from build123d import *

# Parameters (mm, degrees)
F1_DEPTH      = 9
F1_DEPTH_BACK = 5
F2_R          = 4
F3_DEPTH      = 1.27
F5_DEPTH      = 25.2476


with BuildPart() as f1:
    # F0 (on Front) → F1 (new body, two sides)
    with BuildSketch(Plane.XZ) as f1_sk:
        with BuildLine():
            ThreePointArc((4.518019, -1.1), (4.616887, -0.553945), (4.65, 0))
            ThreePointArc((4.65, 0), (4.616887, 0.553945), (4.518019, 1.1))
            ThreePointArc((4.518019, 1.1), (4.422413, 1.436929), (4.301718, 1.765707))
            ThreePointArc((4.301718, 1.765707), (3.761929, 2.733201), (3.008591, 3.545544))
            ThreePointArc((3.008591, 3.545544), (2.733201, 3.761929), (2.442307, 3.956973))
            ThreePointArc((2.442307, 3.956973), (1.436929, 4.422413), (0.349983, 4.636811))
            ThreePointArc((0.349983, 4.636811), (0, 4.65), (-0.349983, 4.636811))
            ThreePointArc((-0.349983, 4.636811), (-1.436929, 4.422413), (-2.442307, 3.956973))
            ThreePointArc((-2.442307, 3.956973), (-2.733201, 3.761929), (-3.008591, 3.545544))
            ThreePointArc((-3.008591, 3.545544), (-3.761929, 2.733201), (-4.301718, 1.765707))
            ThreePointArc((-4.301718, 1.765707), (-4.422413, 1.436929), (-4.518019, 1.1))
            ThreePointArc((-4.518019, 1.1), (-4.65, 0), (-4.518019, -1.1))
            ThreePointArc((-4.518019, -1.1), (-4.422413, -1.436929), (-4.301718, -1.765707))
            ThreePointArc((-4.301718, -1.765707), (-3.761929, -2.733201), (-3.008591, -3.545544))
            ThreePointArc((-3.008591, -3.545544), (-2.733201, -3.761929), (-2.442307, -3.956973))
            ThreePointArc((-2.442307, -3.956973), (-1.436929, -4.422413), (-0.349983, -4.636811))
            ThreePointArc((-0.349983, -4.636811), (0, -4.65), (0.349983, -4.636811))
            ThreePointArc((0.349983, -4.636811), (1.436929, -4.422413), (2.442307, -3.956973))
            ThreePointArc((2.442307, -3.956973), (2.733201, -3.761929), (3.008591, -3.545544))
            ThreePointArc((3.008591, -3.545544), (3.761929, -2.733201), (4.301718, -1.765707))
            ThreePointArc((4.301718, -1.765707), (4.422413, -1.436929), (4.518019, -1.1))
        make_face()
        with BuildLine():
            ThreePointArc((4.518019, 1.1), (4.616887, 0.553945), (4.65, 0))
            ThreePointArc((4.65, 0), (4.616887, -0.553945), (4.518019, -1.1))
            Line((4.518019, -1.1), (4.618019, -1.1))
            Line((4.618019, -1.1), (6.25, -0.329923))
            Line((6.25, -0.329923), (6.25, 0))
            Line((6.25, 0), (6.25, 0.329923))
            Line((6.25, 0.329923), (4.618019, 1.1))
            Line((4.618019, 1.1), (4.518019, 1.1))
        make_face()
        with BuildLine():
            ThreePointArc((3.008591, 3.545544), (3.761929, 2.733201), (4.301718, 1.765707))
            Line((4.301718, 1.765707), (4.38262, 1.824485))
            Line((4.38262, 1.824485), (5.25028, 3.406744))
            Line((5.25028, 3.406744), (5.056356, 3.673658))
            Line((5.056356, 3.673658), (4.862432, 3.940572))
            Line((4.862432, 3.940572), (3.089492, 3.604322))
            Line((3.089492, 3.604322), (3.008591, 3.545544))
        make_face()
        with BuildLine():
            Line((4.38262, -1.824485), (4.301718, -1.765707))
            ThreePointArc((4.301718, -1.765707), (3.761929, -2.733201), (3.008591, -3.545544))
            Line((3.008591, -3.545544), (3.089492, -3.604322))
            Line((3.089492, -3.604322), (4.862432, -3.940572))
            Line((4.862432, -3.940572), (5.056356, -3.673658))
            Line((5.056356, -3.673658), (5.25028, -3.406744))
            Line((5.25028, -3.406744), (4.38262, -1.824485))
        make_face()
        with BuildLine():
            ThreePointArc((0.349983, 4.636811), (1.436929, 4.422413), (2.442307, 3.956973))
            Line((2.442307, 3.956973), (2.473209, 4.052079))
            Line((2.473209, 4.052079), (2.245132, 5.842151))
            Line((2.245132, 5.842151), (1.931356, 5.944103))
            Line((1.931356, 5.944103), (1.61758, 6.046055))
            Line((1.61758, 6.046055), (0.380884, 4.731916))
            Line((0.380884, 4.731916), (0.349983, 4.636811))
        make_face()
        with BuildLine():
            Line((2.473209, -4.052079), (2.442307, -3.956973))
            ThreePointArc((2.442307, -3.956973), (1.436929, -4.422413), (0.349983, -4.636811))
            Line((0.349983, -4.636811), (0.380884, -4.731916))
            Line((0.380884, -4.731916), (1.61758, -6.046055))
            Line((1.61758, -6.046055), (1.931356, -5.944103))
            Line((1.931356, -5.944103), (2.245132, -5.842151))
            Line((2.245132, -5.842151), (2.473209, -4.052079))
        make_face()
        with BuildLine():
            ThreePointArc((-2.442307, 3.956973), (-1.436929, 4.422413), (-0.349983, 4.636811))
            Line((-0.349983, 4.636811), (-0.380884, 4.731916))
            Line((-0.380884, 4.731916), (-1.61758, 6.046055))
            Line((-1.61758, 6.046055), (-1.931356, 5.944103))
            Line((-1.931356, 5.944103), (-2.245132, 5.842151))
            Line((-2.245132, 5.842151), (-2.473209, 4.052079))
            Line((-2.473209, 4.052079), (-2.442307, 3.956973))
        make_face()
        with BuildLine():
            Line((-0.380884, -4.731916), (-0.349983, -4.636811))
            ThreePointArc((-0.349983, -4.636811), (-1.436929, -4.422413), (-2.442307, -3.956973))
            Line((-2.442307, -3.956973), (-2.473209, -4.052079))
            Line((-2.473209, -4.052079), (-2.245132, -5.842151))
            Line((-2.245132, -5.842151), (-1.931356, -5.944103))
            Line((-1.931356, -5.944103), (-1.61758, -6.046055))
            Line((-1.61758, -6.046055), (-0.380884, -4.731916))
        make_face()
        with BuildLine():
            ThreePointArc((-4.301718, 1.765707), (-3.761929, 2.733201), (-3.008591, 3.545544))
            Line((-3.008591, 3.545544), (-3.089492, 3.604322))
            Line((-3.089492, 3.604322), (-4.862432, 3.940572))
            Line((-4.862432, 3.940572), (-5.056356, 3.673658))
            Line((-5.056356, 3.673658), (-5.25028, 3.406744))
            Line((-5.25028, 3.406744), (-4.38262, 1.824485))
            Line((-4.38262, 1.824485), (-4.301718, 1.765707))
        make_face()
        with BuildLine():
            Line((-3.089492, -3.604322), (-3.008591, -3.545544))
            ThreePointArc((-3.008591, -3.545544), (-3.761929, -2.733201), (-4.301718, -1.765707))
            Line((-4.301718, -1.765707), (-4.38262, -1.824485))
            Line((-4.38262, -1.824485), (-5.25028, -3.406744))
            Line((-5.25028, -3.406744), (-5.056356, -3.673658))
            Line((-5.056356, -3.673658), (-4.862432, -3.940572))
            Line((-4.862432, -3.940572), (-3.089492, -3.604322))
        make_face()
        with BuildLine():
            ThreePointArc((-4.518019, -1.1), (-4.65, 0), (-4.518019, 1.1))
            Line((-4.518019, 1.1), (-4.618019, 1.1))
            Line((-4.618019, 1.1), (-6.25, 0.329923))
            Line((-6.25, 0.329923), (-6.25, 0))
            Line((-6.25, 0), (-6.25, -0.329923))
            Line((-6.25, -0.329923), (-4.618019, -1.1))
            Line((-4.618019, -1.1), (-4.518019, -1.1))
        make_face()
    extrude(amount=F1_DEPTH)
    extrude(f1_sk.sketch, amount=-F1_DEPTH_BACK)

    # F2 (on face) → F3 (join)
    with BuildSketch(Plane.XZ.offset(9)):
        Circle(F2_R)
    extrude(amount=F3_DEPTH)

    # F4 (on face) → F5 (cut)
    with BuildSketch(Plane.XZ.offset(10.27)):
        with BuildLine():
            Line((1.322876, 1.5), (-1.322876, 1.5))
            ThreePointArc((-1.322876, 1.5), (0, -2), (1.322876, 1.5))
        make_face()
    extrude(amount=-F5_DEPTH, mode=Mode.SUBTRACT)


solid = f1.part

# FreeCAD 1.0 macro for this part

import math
import FreeCAD as App
import Part
import Sketcher
from FreeCAD import Vector
Q = App.Units.Quantity

doc = App.newDocument("Part")
params = doc.addObject("Spreadsheet::Sheet", "Params")
for row, (alias, value) in enumerate([
    ("sketch1_width", "0.1 mm"),
    ("sketch1_length", "0.1 mm"),
    ("pad1_length", "9 mm"),
    ("pad1_length2", "5 mm"),
    ("sketch2_diameter", "8 mm"),
    ("pad2_length", "1.27 mm"),
    ("sketch3_radius", "2 mm"),
    ("pocket1_length", "25.2476 mm"),
], start=1):
    params.set(f"A{row}", alias)
    params.set(f"B{row}", "=" + value)
    params.setAlias(f"B{row}", alias)

body = doc.addObject("PartDesign::Body", "Body")

sketch1 = body.newObject("Sketcher::SketchObject", "Sketch")
sketch1.AttachmentSupport = (doc.getObject("XZ_Plane"), [""])
sketch1.MapMode = "FlatFace"
sketch1.addGeometry([
    Part.ArcOfCircle(Part.Circle(Vector(0.000157, 0.000053, 0), Vector(0, 0, 1), 4.649834), math.radians(13.683366), math.radians(22.316585)),
    Part.LineSegment(Vector(4.301718, 1.765707, 0), Vector(4.38262, 1.824485, 0)),
    Part.LineSegment(Vector(4.38262, 1.824485, 0), Vector(5.25028, 3.406744, 0)),
    Part.LineSegment(Vector(5.25028, 3.406744, 0), Vector(4.862432, 3.940572, 0)),
    Part.LineSegment(Vector(4.862432, 3.940572, 0), Vector(3.089492, 3.604322, 0)),
    Part.LineSegment(Vector(3.089492, 3.604322, 0), Vector(3.008591, 3.545544, 0)),
    Part.ArcOfCircle(Part.Circle(Vector(-0.000063, -0.000091, 0), Vector(0, 0, 1), 4.650111), math.radians(49.683676), math.radians(58.316378)),
    Part.LineSegment(Vector(2.442307, 3.956973, 0), Vector(2.473209, 4.052079, 0)),
    Part.LineSegment(Vector(2.473209, 4.052079, 0), Vector(2.245132, 5.842151, 0)),
    Part.LineSegment(Vector(2.245132, 5.842151, 0), Vector(1.61758, 6.046055, 0)),
    Part.LineSegment(Vector(1.61758, 6.046055, 0), Vector(0.380884, 4.731916, 0)),
    Part.LineSegment(Vector(0.380884, 4.731916, 0), Vector(0.349983, 4.636811, 0)),
    Part.ArcOfCircle(Part.Circle(Vector(0, -0.000165, 0), Vector(0, 0, 1), 4.650165), math.radians(85.683695), math.radians(94.316305)),
    Part.LineSegment(Vector(-0.349983, 4.636811, 0), Vector(-0.380884, 4.731916, 0)),
    Part.LineSegment(Vector(-0.380884, 4.731916, 0), Vector(-1.61758, 6.046055, 0)),
    Part.LineSegment(Vector(-1.61758, 6.046055, 0), Vector(-2.245132, 5.842151, 0)),
    Part.LineSegment(Vector(-2.245132, 5.842151, 0), Vector(-2.473209, 4.052079, 0)),
    Part.LineSegment(Vector(-2.473209, 4.052079, 0), Vector(-2.442307, 3.956973, 0)),
    Part.ArcOfCircle(Part.Circle(Vector(0.000063, -0.000091, 0), Vector(0, 0, 1), 4.650111), math.radians(121.683622), math.radians(130.316324)),
    Part.LineSegment(Vector(-3.008591, 3.545544, 0), Vector(-3.089492, 3.604322, 0)),
    Part.LineSegment(Vector(-3.089492, 3.604322, 0), Vector(-4.862432, 3.940572, 0)),
    Part.LineSegment(Vector(-4.862432, 3.940572, 0), Vector(-5.25028, 3.406744, 0)),
    Part.LineSegment(Vector(-5.25028, 3.406744, 0), Vector(-4.38262, 1.824485, 0)),
    Part.LineSegment(Vector(-4.38262, 1.824485, 0), Vector(-4.301718, 1.765707, 0)),
    Part.ArcOfCircle(Part.Circle(Vector(-0.000157, 0.000053, 0), Vector(0, 0, 1), 4.649834), math.radians(157.683415), math.radians(166.316634)),
    Part.LineSegment(Vector(-4.518019, 1.1, 0), Vector(-4.618019, 1.1, 0)),
    Part.LineSegment(Vector(-4.618019, 1.1, 0), Vector(-6.25, 0.329923, 0)),
    Part.LineSegment(Vector(-6.25, 0.329923, 0), Vector(-6.25, -0.329923, 0)),
    Part.LineSegment(Vector(-6.25, -0.329923, 0), Vector(-4.618019, -1.1, 0)),
    Part.LineSegment(Vector(-4.618019, -1.1, 0), Vector(-4.518019, -1.1, 0)),
    Part.ArcOfCircle(Part.Circle(Vector(-0.000157, -0.000053, 0), Vector(0, 0, 1), 4.649834), math.radians(-166.316634), math.radians(-157.683415)),
    Part.LineSegment(Vector(-4.301718, -1.765707, 0), Vector(-4.38262, -1.824485, 0)),
    Part.LineSegment(Vector(-4.38262, -1.824485, 0), Vector(-5.25028, -3.406744, 0)),
    Part.LineSegment(Vector(-5.25028, -3.406744, 0), Vector(-4.862432, -3.940572, 0)),
    Part.LineSegment(Vector(-4.862432, -3.940572, 0), Vector(-3.089492, -3.604322, 0)),
    Part.LineSegment(Vector(-3.089492, -3.604322, 0), Vector(-3.008591, -3.545544, 0)),
    Part.ArcOfCircle(Part.Circle(Vector(0.000063, 0.000091, 0), Vector(0, 0, 1), 4.650111), math.radians(-130.316324), math.radians(-121.683622)),
    Part.LineSegment(Vector(-2.442307, -3.956973, 0), Vector(-2.473209, -4.052079, 0)),
    Part.LineSegment(Vector(-2.473209, -4.052079, 0), Vector(-2.245132, -5.842151, 0)),
    Part.LineSegment(Vector(-2.245132, -5.842151, 0), Vector(-1.61758, -6.046055, 0)),
    Part.LineSegment(Vector(-1.61758, -6.046055, 0), Vector(-0.380884, -4.731916, 0)),
    Part.LineSegment(Vector(-0.380884, -4.731916, 0), Vector(-0.349983, -4.636811, 0)),
    Part.ArcOfCircle(Part.Circle(Vector(0, 0.000165, 0), Vector(0, 0, 1), 4.650165), math.radians(-94.316305), math.radians(-85.683695)),
    Part.LineSegment(Vector(0.349983, -4.636811, 0), Vector(0.380884, -4.731916, 0)),
    Part.LineSegment(Vector(0.380884, -4.731916, 0), Vector(1.61758, -6.046055, 0)),
    Part.LineSegment(Vector(1.61758, -6.046055, 0), Vector(2.245132, -5.842151, 0)),
    Part.LineSegment(Vector(2.245132, -5.842151, 0), Vector(2.473209, -4.052079, 0)),
    Part.LineSegment(Vector(2.473209, -4.052079, 0), Vector(2.442307, -3.956973, 0)),
    Part.ArcOfCircle(Part.Circle(Vector(-0.000063, 0.000091, 0), Vector(0, 0, 1), 4.650111), math.radians(-58.316378), math.radians(-49.683676)),
    Part.LineSegment(Vector(3.008591, -3.545544, 0), Vector(3.089492, -3.604322, 0)),
    Part.LineSegment(Vector(3.089492, -3.604322, 0), Vector(4.862432, -3.940572, 0)),
    Part.LineSegment(Vector(4.862432, -3.940572, 0), Vector(5.25028, -3.406744, 0)),
    Part.LineSegment(Vector(5.25028, -3.406744, 0), Vector(4.38262, -1.824485, 0)),
    Part.LineSegment(Vector(4.38262, -1.824485, 0), Vector(4.301718, -1.765707, 0)),
    Part.ArcOfCircle(Part.Circle(Vector(0.000157, -0.000053, 0), Vector(0, 0, 1), 4.649834), math.radians(-22.316585), math.radians(-13.683366)),
    Part.LineSegment(Vector(4.518019, -1.1, 0), Vector(4.618019, -1.1, 0)),
    Part.LineSegment(Vector(4.618019, -1.1, 0), Vector(6.25, -0.329923, 0)),
    Part.LineSegment(Vector(6.25, -0.329923, 0), Vector(6.25, 0.329923, 0)),
    Part.LineSegment(Vector(6.25, 0.329923, 0), Vector(4.618019, 1.1, 0)),
    Part.LineSegment(Vector(4.618019, 1.1, 0), Vector(4.518019, 1.1, 0)),
], False)
sketch1.addConstraint([
    Sketcher.Constraint("Coincident", 0, 2, 1, 1),
    Sketcher.Constraint("Coincident", 1, 2, 2, 1),
    Sketcher.Constraint("Coincident", 2, 2, 3, 1),
    Sketcher.Constraint("Coincident", 3, 2, 4, 1),
    Sketcher.Constraint("Coincident", 4, 2, 5, 1),
    Sketcher.Constraint("Coincident", 5, 2, 6, 1),
    Sketcher.Constraint("Coincident", 6, 2, 7, 1),
    Sketcher.Constraint("Coincident", 7, 2, 8, 1),
    Sketcher.Constraint("Coincident", 8, 2, 9, 1),
    Sketcher.Constraint("Coincident", 9, 2, 10, 1),
    Sketcher.Constraint("Coincident", 10, 2, 11, 1),
    Sketcher.Constraint("Coincident", 11, 2, 12, 1),
    Sketcher.Constraint("Coincident", 12, 2, 13, 1),
    Sketcher.Constraint("Coincident", 13, 2, 14, 1),
    Sketcher.Constraint("Coincident", 14, 2, 15, 1),
    Sketcher.Constraint("Coincident", 15, 2, 16, 1),
    Sketcher.Constraint("Coincident", 16, 2, 17, 1),
    Sketcher.Constraint("Coincident", 17, 2, 18, 1),
    Sketcher.Constraint("Coincident", 18, 2, 19, 1),
    Sketcher.Constraint("Coincident", 19, 2, 20, 1),
    Sketcher.Constraint("Coincident", 20, 2, 21, 1),
    Sketcher.Constraint("Coincident", 21, 2, 22, 1),
    Sketcher.Constraint("Coincident", 22, 2, 23, 1),
    Sketcher.Constraint("Coincident", 23, 2, 24, 1),
    Sketcher.Constraint("Coincident", 24, 2, 25, 1),
    Sketcher.Constraint("Coincident", 25, 2, 26, 1),
    Sketcher.Constraint("Coincident", 26, 2, 27, 1),
    Sketcher.Constraint("Coincident", 27, 2, 28, 1),
    Sketcher.Constraint("Coincident", 28, 2, 29, 1),
    Sketcher.Constraint("Coincident", 29, 2, 30, 1),
    Sketcher.Constraint("Coincident", 30, 2, 31, 1),
    Sketcher.Constraint("Coincident", 31, 2, 32, 1),
    Sketcher.Constraint("Coincident", 32, 2, 33, 1),
    Sketcher.Constraint("Coincident", 33, 2, 34, 1),
    Sketcher.Constraint("Coincident", 34, 2, 35, 1),
    Sketcher.Constraint("Coincident", 35, 2, 36, 1),
    Sketcher.Constraint("Coincident", 36, 2, 37, 1),
    Sketcher.Constraint("Coincident", 37, 2, 38, 1),
    Sketcher.Constraint("Coincident", 38, 2, 39, 1),
    Sketcher.Constraint("Coincident", 39, 2, 40, 1),
    Sketcher.Constraint("Coincident", 40, 2, 41, 1),
    Sketcher.Constraint("Coincident", 41, 2, 42, 1),
    Sketcher.Constraint("Coincident", 42, 2, 43, 1),
    Sketcher.Constraint("Coincident", 43, 2, 44, 1),
    Sketcher.Constraint("Coincident", 44, 2, 45, 1),
    Sketcher.Constraint("Coincident", 45, 2, 46, 1),
    Sketcher.Constraint("Coincident", 46, 2, 47, 1),
    Sketcher.Constraint("Coincident", 47, 2, 48, 1),
    Sketcher.Constraint("Coincident", 48, 2, 49, 1),
    Sketcher.Constraint("Coincident", 49, 2, 50, 1),
    Sketcher.Constraint("Coincident", 50, 2, 51, 1),
    Sketcher.Constraint("Coincident", 51, 2, 52, 1),
    Sketcher.Constraint("Coincident", 52, 2, 53, 1),
    Sketcher.Constraint("Coincident", 53, 2, 54, 1),
    Sketcher.Constraint("Coincident", 54, 2, 55, 1),
    Sketcher.Constraint("Coincident", 55, 2, 56, 1),
    Sketcher.Constraint("Coincident", 56, 2, 57, 1),
    Sketcher.Constraint("Coincident", 57, 2, 58, 1),
    Sketcher.Constraint("Coincident", 58, 2, 59, 1),
    Sketcher.Constraint("Coincident", 59, 2, 0, 1),
    Sketcher.Constraint("Horizontal", 25),
    Sketcher.Constraint("Vertical", 27),
    Sketcher.Constraint("Horizontal", 29),
    Sketcher.Constraint("Horizontal", 55),
    Sketcher.Constraint("Vertical", 57),
    Sketcher.Constraint("Horizontal", 59),
    Sketcher.Constraint("Equal", 6, 18),
    Sketcher.Constraint("Equal", 0, 24),
    Sketcher.Constraint("Equal", 24, 30),
    Sketcher.Constraint("Equal", 18, 36),
    Sketcher.Constraint("Equal", 12, 42),
    Sketcher.Constraint("Equal", 36, 48),
    Sketcher.Constraint("Equal", 30, 54),
    Sketcher.Constraint("Symmetric", 0, 3, 30, 3, -1, 1),
    Sketcher.Constraint("Symmetric", 6, 3, 36, 3, -1, 1),
    Sketcher.Constraint("Symmetric", 12, 3, 42, 3, -1, 1),
    Sketcher.Constraint("Symmetric", 18, 3, 48, 3, -1, 1),
    Sketcher.Constraint("Symmetric", 24, 3, 54, 3, -1, 1),
    Sketcher.Constraint("Symmetric", 1, 2, 31, 2, -1, 1),
    Sketcher.Constraint("Symmetric", 2, 2, 32, 2, -1, 1),
    Sketcher.Constraint("Symmetric", 3, 2, 33, 2, -1, 1),
    Sketcher.Constraint("Symmetric", 4, 2, 34, 2, -1, 1),
    Sketcher.Constraint("Symmetric", 7, 2, 37, 2, -1, 1),
    Sketcher.Constraint("Symmetric", 8, 2, 38, 2, -1, 1),
    Sketcher.Constraint("Symmetric", 9, 2, 39, 2, -1, 1),
    Sketcher.Constraint("Symmetric", 10, 2, 40, 2, -1, 1),
    Sketcher.Constraint("Symmetric", 13, 2, 43, 2, -1, 1),
    Sketcher.Constraint("Symmetric", 14, 2, 44, 2, -1, 1),
    Sketcher.Constraint("Symmetric", 15, 2, 45, 2, -1, 1),
    Sketcher.Constraint("Symmetric", 16, 2, 46, 2, -1, 1),
    Sketcher.Constraint("Symmetric", 19, 2, 49, 2, -1, 1),
    Sketcher.Constraint("Symmetric", 20, 2, 50, 2, -1, 1),
    Sketcher.Constraint("Symmetric", 21, 2, 51, 2, -1, 1),
    Sketcher.Constraint("Symmetric", 22, 2, 52, 2, -1, 1),
    Sketcher.Constraint("Symmetric", 25, 2, 55, 2, -1, 1),
    Sketcher.Constraint("Symmetric", 26, 2, 56, 2, -1, 1),
    Sketcher.Constraint("Symmetric", 28, 2, 58, 2, -1, 1),
    Sketcher.Constraint("Symmetric", 6, 3, 18, 3, -2),
    Sketcher.Constraint("Symmetric", 0, 3, 24, 3, -2),
    Sketcher.Constraint("Symmetric", 11, 2, 12, 2, -2),
    Sketcher.Constraint("Symmetric", 10, 2, 13, 2, -2),
    Sketcher.Constraint("Symmetric", 9, 2, 14, 2, -2),
    Sketcher.Constraint("Symmetric", 8, 2, 15, 2, -2),
    Sketcher.Constraint("Symmetric", 7, 2, 16, 2, -2),
    Sketcher.Constraint("Symmetric", 4, 2, 19, 2, -2),
    Sketcher.Constraint("Symmetric", 3, 2, 20, 2, -2),
    Sketcher.Constraint("Symmetric", 2, 2, 21, 2, -2),
    Sketcher.Constraint("Symmetric", 1, 2, 22, 2, -2),
    Sketcher.Constraint("Symmetric", 28, 2, 55, 2, -2),
    Sketcher.Constraint("Perpendicular", 3, 5),
    Sketcher.Constraint("Perpendicular", 7, 9),
    Sketcher.Constraint("Perpendicular", 15, 17),
    Sketcher.Constraint("Perpendicular", 19, 21),
    Sketcher.Constraint("Parallel", 1, 31),
    Sketcher.Constraint("Perpendicular", 33, 35),
    Sketcher.Constraint("Perpendicular", 9, 37),
    Sketcher.Constraint("Parallel", 11, 41),
    Sketcher.Constraint("Parallel", 13, 43),
    Sketcher.Constraint("Perpendicular", 45, 47),
    Sketcher.Constraint("Perpendicular", 21, 49),
    Sketcher.Constraint("Parallel", 23, 53),
    Sketcher.Constraint("Parallel", 28, 58),
    Sketcher.Constraint("Horizontal", 0, 2, 23, 2),
    Sketcher.Constraint("Horizontal", 27, 2, 56, 2),
    Sketcher.Constraint("Equal", 2, 4),
    Sketcher.Constraint("Equal", 1, 5),
    Sketcher.Constraint("Equal", 5, 7),
    Sketcher.Constraint("Equal", 4, 8),
    Sketcher.Constraint("Equal", 3, 9),
    Sketcher.Constraint("Equal", 8, 10),
    Sketcher.Constraint("Equal", 7, 11),
    Sketcher.Constraint("Equal", 22, 26),
    Sketcher.Constraint("Angle", 5, Q("-144.000008 deg")),
    Sketcher.Constraint("Angle", 9, Q("162 deg")),
    Sketcher.Constraint("DistanceX", 25, 2, 25, 1, 0.1),
    Sketcher.Constraint("Distance", 1, 0.1),
    Sketcher.Constraint("DistanceY", -1, 1, 24, 2, 1.1),
    Sketcher.Constraint("DistanceX", 26, 2, -1, 1, 6.25),
    Sketcher.Constraint("Radius", 6, 4.650111),
    Sketcher.Constraint("Radius", 0, 4.649834),
    Sketcher.Constraint("Radius", 12, 4.650165),
    Sketcher.Constraint("DistanceY", 27, 2, 27, 1, 0.659846),
    Sketcher.Constraint("DistanceX", -1, 1, 1, 2, 4.38262),
    Sketcher.Constraint("DistanceX", -1, 1, 2, 2, 5.25028),
    Sketcher.Constraint("DistanceY", -1, 1, 3, 2, 3.940572),
    Sketcher.Constraint("DistanceX", -1, 1, 4, 2, 3.089492),
    Sketcher.Constraint("DistanceY", -1, 1, 4, 2, 3.604322),
    Sketcher.Constraint("DistanceX", -1, 1, 7, 2, 2.473209),
    Sketcher.Constraint("DistanceY", -1, 1, 7, 2, 4.052079),
    Sketcher.Constraint("DistanceX", -1, 1, 8, 2, 2.245132),
    Sketcher.Constraint("DistanceY", -1, 1, 8, 2, 5.842151),
    Sketcher.Constraint("DistanceY", -1, 1, 11, 2, 4.636811),
    Sketcher.Constraint("DistanceX", -1, 1, 0, 3, 0.000157),
    Sketcher.Constraint("DistanceY", 12, 3, -1, 1, 0.000165),
])
sketch1.setExpression("Constraints[134]", "Params.sketch1_width")
sketch1.setExpression("Constraints[135]", "Params.sketch1_length")
pad1 = body.newObject("PartDesign::Pad", "Pad")
pad1.Profile = sketch1
pad1.Type = "TwoLengths"
pad1.setExpression("Length", "Params.pad1_length")
pad1.setExpression("Length2", "Params.pad1_length2")

sketch2 = body.newObject("Sketcher::SketchObject", "Sketch001")
sketch2.AttachmentSupport = (doc.getObject("XZ_Plane"), [""])
sketch2.MapMode = "FlatFace"
sketch2.AttachmentOffset = App.Placement(Vector(0, 0, 9), App.Rotation())
sketch2.addGeometry(Part.Circle(Vector(0, 0, 0), Vector(0, 0, 1), 4), False)
sketch2.addConstraint([
    Sketcher.Constraint("Coincident", 0, 3, -1, 1),
    Sketcher.Constraint("Diameter", 0, 8.0),
])
sketch2.setExpression("Constraints[1]", "Params.sketch2_diameter")
pad2 = body.newObject("PartDesign::Pad", "Pad001")
pad2.Profile = sketch2
pad2.setExpression("Length", "Params.pad2_length")

sketch3 = body.newObject("Sketcher::SketchObject", "Sketch002")
sketch3.AttachmentSupport = (doc.getObject("XZ_Plane"), [""])
sketch3.MapMode = "FlatFace"
sketch3.AttachmentOffset = App.Placement(Vector(0, 0, 10.27), App.Rotation())
sketch3.addGeometry([
    Part.LineSegment(Vector(1.3, 1.5, 0), Vector(-1.3, 1.5, 0)),
    Part.ArcOfCircle(Part.Circle(Vector(0, 0, 0), Vector(0, 0, 1), 2), math.radians(131), math.radians(409)),
], False)
sketch3.addConstraint([
    Sketcher.Constraint("Coincident", 0, 1, 1, 2),
    Sketcher.Constraint("Coincident", 1, 1, 0, 2),
    Sketcher.Constraint("Horizontal", 0),
    Sketcher.Constraint("Coincident", 1, 3, -1, 1),
    Sketcher.Constraint("Radius", 1, 2.0),
    Sketcher.Constraint("DistanceY", -1, 1, 0, 1, 1.5),
])
sketch3.setExpression("Constraints[4]", "Params.sketch3_radius")
pocket1 = body.newObject("PartDesign::Pocket", "Pocket")
pocket1.Profile = sketch3
pocket1.setExpression("Length", "Params.pocket1_length")

doc.recompute()
